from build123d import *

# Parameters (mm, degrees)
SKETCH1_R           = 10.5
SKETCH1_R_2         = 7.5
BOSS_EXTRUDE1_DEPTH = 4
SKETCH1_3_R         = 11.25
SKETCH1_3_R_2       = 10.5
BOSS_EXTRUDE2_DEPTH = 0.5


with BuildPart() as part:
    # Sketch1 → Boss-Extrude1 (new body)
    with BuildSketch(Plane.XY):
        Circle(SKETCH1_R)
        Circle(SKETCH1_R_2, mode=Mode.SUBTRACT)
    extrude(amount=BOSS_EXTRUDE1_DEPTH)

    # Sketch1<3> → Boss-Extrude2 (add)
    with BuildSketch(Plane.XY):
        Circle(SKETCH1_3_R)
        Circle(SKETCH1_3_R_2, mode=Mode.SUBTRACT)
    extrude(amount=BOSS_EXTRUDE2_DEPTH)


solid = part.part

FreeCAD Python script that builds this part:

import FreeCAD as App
import Part
import Sketcher
from FreeCAD import Vector
Q = App.Units.Quantity

doc = App.newDocument("Part")
body = doc.addObject("PartDesign::Body", "Body")

# Sketch on XY plane
sketch1 = body.newObject("Sketcher::SketchObject", "Sketch")
sketch1.AttachmentSupport = (doc.getObject("XY_Plane"), [""])
sketch1.MapMode = "FlatFace"
sketch1.addGeometry([
    Part.Circle(Vector(0, 0, 0), Vector(0, 0, 1), 10),
    Part.Circle(Vector(0, 0, 0), Vector(0, 0, 1), 8),
], False)
sketch1.addConstraint([
    Sketcher.Constraint("Coincident", 0, 3, -1, 1),
    Sketcher.Constraint("Coincident", 1, 3, -1, 1),
    Sketcher.Constraint("Diameter", 0, Q("21 mm")),
    Sketcher.Constraint("Diameter", 1, Q("15 mm")),
])
pad1 = body.newObject("PartDesign::Pad", "Pad")
pad1.Profile = sketch1
pad1.Length = 4

# Sketch on XY plane
sketch2 = body.newObject("Sketcher::SketchObject", "Sketch001")
sketch2.AttachmentSupport = (doc.getObject("XY_Plane"), [""])
sketch2.MapMode = "FlatFace"
sketch2.addGeometry([
    Part.Circle(Vector(0, 0, 0), Vector(0, 0, 1), 11),
    Part.Circle(Vector(0, 0, 0), Vector(0, 0, 1), 10),
], False)
sketch2.addConstraint([
    Sketcher.Constraint("Coincident", 0, 3, -1, 1),
    Sketcher.Constraint("Coincident", 1, 3, -1, 1),
    Sketcher.Constraint("Diameter", 1, Q("21 mm")),
    Sketcher.Constraint("Diameter", 0, Q("22.5 mm")),
])
pad2 = body.newObject("PartDesign::Pad", "Pad001")
pad2.Profile = sketch2
pad2.Length = 0.5

doc.recompute()
